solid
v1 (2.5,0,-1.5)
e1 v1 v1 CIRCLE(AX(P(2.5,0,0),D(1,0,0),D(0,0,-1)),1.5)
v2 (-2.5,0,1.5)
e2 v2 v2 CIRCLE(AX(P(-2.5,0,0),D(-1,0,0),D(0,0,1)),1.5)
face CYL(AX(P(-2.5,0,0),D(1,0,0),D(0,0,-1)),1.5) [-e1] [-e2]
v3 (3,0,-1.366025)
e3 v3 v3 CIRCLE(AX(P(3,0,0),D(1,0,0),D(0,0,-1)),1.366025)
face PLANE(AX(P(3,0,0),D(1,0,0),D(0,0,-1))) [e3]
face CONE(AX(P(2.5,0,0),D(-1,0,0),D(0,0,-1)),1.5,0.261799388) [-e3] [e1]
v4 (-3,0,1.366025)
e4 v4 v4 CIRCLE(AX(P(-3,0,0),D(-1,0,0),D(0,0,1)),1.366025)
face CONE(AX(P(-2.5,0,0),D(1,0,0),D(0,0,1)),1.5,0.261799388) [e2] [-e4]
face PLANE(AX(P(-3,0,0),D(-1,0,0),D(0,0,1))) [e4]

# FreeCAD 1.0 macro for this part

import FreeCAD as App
import Part
import Sketcher
from FreeCAD import Vector

doc = App.newDocument("Part")
body = doc.addObject("PartDesign::Body", "Body")

# Sketch on YZ plane
sketch1 = body.newObject("Sketcher::SketchObject", "Sketch")
sketch1.AttachmentSupport = (doc.getObject("YZ_Plane"), [""])
sketch1.MapMode = "FlatFace"
sketch1.addGeometry(Part.Circle(Vector(0, 0, 0), Vector(0, 0, 1), 1.5), False)
sketch1.addConstraint(Sketcher.Constraint("Coincident", 0, 3, -1, 1))
sketch1.addConstraint(Sketcher.Constraint("Diameter", 0, 3.0))
pad1 = body.newObject("PartDesign::Pad", "Pad")
pad1.Profile = sketch1
pad1.Type = "TwoLengths"
pad1.Length = 2.5
pad1.Length2 = 2.5

# Sketch on YZ plane
sketch2 = body.newObject("Sketcher::SketchObject", "Sketch001")
sketch2.AttachmentSupport = (doc.getObject("YZ_Plane"), [""])
sketch2.MapMode = "FlatFace"
sketch2.AttachmentOffset = App.Placement(Vector(0, 0, 2.5), App.Rotation())
sketch2.addGeometry(Part.Circle(Vector(0, 0, 0), Vector(0, 0, 1), 1.5), False)
sketch2.addConstraint(Sketcher.Constraint("Coincident", 0, 3, -1, 1))
sketch2.addConstraint(Sketcher.Constraint("Diameter", 0, 3.0))
pad2 = body.newObject("PartDesign::Pad", "Pad001")
pad2.Profile = sketch2
pad2.Length = 0.5
pad2.TaperAngle = -15

# Sketch on YZ plane
sketch3 = body.newObject("Sketcher::SketchObject", "Sketch002")
sketch3.AttachmentSupport = (doc.getObject("YZ_Plane"), [""])
sketch3.MapMode = "FlatFace"
sketch3.AttachmentOffset = App.Placement(Vector(0, 0, -2.5), App.Rotation())
sketch3.addGeometry(Part.Circle(Vector(0, 0, 0), Vector(0, 0, 1), 1.5), False)
sketch3.addConstraint(Sketcher.Constraint("Coincident", 0, 3, -1, 1))
sketch3.addConstraint(Sketcher.Constraint("Diameter", 0, 3.0))
pad3 = body.newObject("PartDesign::Pad", "Pad002")
pad3.Profile = sketch3
pad3.Length = 0.5
pad3.Reversed = True
pad3.TaperAngle = -15

doc.recompute()
